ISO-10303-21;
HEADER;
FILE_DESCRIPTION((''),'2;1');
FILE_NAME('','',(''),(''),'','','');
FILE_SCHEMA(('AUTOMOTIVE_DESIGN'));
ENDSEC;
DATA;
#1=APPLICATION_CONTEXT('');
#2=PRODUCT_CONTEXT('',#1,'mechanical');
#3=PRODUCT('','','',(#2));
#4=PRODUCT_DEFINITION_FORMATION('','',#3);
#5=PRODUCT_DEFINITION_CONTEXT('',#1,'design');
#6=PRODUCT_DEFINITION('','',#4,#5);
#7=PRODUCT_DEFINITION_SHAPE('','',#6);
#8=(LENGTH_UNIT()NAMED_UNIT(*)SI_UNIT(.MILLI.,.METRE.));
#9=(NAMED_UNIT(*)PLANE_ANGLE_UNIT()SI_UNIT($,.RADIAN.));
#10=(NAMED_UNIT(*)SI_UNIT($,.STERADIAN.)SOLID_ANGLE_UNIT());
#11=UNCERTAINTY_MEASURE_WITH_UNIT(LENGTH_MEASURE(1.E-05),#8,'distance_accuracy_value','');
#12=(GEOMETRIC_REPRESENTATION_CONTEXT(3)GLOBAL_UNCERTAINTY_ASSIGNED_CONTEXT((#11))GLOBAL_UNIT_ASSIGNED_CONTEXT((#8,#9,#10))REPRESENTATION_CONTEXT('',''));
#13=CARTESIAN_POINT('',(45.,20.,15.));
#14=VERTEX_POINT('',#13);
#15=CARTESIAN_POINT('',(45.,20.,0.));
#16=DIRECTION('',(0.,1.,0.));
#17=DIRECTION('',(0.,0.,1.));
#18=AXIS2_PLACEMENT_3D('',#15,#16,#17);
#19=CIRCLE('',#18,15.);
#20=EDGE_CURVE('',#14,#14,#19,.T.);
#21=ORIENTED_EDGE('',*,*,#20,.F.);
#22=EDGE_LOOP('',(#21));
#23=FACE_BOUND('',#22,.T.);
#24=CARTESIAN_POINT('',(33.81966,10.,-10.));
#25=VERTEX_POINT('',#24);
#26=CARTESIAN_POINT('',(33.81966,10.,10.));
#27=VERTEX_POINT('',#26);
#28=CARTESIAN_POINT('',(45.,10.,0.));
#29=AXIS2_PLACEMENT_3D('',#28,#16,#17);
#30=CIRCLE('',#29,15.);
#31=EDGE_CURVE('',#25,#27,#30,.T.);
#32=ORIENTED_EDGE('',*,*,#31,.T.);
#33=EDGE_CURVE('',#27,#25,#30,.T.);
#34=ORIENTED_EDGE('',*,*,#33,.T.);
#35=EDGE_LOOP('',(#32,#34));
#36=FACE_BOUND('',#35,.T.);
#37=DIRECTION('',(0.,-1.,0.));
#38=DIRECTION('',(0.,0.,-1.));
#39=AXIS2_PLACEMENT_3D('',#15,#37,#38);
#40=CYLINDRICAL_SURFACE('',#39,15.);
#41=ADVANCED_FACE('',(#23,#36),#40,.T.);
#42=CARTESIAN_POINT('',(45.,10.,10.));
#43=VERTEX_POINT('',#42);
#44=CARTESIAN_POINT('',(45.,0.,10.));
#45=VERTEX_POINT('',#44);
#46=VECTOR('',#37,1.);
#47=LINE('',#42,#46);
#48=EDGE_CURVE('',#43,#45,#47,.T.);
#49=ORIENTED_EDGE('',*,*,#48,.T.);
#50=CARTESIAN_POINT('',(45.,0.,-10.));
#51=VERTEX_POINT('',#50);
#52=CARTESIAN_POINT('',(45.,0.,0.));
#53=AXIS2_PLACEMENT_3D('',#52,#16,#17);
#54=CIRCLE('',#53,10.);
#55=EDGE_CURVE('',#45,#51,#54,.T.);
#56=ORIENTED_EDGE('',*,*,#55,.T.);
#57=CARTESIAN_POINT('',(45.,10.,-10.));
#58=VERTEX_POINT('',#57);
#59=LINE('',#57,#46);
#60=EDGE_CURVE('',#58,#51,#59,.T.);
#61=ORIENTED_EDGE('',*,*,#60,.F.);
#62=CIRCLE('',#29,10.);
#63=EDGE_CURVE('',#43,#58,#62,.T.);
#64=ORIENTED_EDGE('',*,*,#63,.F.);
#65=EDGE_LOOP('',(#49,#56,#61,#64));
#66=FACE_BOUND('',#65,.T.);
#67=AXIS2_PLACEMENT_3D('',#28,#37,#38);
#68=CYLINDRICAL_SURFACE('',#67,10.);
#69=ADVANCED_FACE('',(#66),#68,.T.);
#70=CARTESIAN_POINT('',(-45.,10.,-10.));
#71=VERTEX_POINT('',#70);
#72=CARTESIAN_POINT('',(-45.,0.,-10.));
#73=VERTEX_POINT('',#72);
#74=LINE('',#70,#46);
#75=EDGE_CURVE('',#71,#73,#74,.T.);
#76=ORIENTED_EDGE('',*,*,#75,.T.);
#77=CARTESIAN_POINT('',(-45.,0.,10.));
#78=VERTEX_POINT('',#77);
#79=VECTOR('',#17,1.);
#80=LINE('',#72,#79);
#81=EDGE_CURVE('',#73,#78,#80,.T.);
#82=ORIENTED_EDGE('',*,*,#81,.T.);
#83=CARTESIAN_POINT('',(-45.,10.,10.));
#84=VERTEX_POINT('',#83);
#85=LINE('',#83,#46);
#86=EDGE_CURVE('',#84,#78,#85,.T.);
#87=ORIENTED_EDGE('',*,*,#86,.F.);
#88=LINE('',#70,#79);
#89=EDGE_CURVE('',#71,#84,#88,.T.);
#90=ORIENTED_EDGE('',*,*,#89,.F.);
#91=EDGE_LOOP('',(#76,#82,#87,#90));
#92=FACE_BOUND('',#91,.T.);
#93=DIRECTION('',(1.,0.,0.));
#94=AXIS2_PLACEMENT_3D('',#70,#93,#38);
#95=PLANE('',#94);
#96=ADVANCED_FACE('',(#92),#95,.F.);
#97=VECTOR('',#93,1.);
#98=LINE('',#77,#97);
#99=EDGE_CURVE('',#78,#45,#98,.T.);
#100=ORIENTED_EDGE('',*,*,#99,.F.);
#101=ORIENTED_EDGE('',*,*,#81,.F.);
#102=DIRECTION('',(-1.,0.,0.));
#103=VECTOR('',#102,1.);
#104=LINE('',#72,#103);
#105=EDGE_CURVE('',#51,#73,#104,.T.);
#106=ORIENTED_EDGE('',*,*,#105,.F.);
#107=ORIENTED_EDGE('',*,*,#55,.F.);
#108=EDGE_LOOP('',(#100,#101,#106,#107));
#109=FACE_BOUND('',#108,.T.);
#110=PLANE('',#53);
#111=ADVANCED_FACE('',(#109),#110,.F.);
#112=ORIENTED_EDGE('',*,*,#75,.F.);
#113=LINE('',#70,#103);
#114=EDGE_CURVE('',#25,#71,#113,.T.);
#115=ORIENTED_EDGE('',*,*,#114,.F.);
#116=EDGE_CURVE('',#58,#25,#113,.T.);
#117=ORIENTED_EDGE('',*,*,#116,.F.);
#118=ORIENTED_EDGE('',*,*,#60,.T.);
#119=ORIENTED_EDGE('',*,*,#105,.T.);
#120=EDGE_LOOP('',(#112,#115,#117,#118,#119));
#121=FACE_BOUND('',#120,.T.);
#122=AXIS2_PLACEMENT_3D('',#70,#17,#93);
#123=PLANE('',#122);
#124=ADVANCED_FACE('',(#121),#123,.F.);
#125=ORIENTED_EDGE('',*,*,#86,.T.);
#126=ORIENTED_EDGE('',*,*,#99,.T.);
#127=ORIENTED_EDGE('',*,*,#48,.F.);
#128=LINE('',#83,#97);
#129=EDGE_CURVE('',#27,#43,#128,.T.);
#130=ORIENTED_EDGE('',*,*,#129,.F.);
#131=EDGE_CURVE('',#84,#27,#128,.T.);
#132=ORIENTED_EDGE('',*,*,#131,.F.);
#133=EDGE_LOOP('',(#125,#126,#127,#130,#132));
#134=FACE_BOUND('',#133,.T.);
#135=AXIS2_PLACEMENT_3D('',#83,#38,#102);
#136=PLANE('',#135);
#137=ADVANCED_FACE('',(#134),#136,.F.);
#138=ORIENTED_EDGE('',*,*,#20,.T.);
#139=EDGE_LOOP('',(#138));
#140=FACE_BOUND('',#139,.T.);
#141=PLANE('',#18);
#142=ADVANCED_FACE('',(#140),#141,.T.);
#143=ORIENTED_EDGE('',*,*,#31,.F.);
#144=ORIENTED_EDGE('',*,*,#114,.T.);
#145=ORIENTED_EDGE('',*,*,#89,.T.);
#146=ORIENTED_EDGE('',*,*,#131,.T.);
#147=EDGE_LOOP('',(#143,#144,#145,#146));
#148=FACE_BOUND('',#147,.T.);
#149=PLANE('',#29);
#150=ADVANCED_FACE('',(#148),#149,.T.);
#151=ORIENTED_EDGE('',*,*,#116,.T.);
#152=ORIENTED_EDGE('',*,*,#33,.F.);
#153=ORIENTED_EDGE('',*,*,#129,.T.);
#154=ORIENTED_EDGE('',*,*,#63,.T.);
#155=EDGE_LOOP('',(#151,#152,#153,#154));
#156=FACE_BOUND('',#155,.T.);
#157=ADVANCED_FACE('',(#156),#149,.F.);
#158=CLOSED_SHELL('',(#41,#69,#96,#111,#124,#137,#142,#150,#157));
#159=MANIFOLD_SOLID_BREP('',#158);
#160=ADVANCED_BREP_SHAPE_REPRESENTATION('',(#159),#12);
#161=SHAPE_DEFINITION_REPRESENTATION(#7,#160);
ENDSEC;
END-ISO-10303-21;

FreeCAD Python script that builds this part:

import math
import FreeCAD as App
import Part
import Sketcher

V = App.Vector

doc = App.newDocument("Part")
body = doc.addObject("PartDesign::Body", "Body")

sketch1 = body.newObject("Sketcher::SketchObject", "Sketch")
sketch1.AttachmentSupport = (doc.getObject("XZ_Plane"), [""])
sketch1.MapMode = "FlatFace"
sketch1.addGeometry([
    Part.LineSegment(V(45, -10, 0), V(-45, -10, 0)),
    Part.LineSegment(V(-45, -10, 0), V(-45, 10, 0)),
    Part.LineSegment(V(-45, 10, 0), V(45, 10, 0)),
    Part.ArcOfCircle(Part.Circle(V(45, 0, 0), V(0, 0, 1), 10), math.radians(-90), math.radians(90)),
], False)
sketch1.addConstraint([
    Sketcher.Constraint("Coincident", 0, 2, 1, 1),
    Sketcher.Constraint("Coincident", 1, 2, 2, 1),
    Sketcher.Constraint("Tangent", 2, 2, 3, 2),
    Sketcher.Constraint("Tangent", 3, 1, 0, 1),
    Sketcher.Constraint("Horizontal", 0),
    Sketcher.Constraint("Vertical", 1),
    Sketcher.Constraint("Horizontal", 2),
    Sketcher.Constraint("Symmetric", 0, 2, 2, 2, -1, 1),
    Sketcher.Constraint("Radius", 3, 10.0),
    Sketcher.Constraint("DistanceX", 0, 2, 0, 1, 90.0),
])
pad1 = body.newObject("PartDesign::Pad", "Pad")
pad1.Profile = sketch1
pad1.Length = 10
pad1.Reversed = True

sketch2 = body.newObject("Sketcher::SketchObject", "Sketch001")
sketch2.AttachmentSupport = (doc.getObject("XZ_Plane"), [""])
sketch2.MapMode = "FlatFace"
sketch2.AttachmentOffset = App.Placement(V(0, 0, -10), App.Rotation())
sketch2.addGeometry(Part.Circle(V(45, 0, 0), V(0, 0, 1), 15), False)
sketch2.addConstraint([
    Sketcher.Constraint("PointOnObject", 0, 3, -1),
    Sketcher.Constraint("Diameter", 0, 30.0),
    Sketcher.Constraint("DistanceX", -1, 1, 0, 3, 45.0),
])
pad2 = body.newObject("PartDesign::Pad", "Pad001")
pad2.Profile = sketch2
pad2.Length = 10
pad2.Reversed = True

doc.recompute()
